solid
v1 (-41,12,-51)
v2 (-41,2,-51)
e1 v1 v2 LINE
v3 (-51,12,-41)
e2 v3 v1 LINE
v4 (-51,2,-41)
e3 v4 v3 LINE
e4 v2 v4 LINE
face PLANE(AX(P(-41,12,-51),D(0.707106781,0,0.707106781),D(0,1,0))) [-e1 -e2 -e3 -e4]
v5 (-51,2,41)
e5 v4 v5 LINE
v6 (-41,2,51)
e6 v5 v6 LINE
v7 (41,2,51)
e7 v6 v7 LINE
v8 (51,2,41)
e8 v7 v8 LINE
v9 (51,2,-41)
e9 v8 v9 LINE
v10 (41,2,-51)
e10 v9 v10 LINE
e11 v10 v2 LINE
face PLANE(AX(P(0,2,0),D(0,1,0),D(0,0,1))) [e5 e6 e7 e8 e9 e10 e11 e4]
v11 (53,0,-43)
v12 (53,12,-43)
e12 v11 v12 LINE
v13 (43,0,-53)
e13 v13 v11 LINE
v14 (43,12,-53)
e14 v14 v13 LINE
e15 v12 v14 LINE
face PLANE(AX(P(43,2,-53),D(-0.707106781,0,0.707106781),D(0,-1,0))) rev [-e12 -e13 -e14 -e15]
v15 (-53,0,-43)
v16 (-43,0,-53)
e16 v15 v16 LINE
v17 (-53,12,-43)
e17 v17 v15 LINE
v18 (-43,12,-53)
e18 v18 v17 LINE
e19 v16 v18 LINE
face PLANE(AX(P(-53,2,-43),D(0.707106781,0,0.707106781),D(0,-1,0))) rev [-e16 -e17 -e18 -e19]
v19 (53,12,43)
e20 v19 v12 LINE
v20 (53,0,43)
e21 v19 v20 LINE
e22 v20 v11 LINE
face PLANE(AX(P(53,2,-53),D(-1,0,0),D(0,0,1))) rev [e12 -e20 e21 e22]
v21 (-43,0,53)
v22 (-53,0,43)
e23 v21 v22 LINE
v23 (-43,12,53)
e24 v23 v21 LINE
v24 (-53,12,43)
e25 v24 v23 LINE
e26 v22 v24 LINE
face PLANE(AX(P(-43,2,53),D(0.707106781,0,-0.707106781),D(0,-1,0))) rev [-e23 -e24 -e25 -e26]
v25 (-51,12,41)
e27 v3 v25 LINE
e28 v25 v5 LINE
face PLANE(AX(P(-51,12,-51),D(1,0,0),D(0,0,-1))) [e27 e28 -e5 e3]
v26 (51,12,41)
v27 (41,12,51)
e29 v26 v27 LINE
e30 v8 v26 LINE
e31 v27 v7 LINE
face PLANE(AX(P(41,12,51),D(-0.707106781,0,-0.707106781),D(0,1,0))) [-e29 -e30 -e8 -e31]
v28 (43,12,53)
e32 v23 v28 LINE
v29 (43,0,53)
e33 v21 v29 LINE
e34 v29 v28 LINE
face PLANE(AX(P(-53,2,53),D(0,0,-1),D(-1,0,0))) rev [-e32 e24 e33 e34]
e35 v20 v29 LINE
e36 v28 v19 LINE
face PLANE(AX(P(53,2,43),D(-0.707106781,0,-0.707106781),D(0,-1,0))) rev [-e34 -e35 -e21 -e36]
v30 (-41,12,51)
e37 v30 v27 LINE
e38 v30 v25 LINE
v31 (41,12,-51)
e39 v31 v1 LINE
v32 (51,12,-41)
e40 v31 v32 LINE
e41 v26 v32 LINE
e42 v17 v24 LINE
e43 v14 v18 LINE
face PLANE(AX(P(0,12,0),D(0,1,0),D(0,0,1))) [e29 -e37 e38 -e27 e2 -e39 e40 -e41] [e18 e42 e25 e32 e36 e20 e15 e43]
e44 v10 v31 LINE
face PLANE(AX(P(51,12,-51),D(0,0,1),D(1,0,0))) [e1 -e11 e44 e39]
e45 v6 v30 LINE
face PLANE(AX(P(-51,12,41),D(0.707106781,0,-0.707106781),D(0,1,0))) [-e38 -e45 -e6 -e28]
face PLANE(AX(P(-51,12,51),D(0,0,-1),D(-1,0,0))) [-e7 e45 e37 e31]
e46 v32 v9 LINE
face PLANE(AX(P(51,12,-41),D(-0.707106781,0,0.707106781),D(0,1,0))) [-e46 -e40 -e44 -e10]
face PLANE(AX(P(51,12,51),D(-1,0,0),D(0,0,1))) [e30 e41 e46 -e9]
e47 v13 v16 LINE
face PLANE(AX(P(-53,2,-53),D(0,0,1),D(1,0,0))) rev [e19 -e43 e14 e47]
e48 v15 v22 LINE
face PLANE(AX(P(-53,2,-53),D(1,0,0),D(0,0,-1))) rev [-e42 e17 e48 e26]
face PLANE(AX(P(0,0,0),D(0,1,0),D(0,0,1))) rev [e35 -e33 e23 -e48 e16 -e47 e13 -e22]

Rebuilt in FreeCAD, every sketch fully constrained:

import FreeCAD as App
import Part
import Sketcher
from FreeCAD import Vector


def edges_at(feature, points):
    """Names of the edges that pass closest to the given points."""
    edges = feature.Shape.Edges
    near = lambda p: min(range(len(edges)), key=lambda i: edges[i].distToShape(Part.Vertex(*p))[0])
    return sorted({f"Edge{near(p) + 1}" for p in points})


def add_polygon(sketch, points):
    """Adds a closed chain of lines whose ends are joined by coincident constraints."""
    first, n = sketch.GeometryCount, len(points)
    for a, b in zip(points, points[1:] + points[:1]):
        sketch.addGeometry(Part.LineSegment(App.Vector(*a, 0), App.Vector(*b, 0)), False)
    for i in range(n):
        sketch.addConstraint(Sketcher.Constraint("Coincident", first + i, 2, first + (i + 1) % n, 1))

doc = App.newDocument("Part")
body = doc.addObject("PartDesign::Body", "Body")

# Sketch on XZ plane
sketch1 = body.newObject("Sketcher::SketchObject", "Sketch")
sketch1.AttachmentSupport = (doc.getObject("XZ_Plane"), [""])
sketch1.MapMode = "FlatFace"
add_polygon(sketch1, [(-53, -53), (-53, 53), (53, 53), (53, -53)])  # lines 0-3
sketch1.addConstraint([
    Sketcher.Constraint("Vertical", 0),
    Sketcher.Constraint("Horizontal", 1),
    Sketcher.Constraint("Vertical", 2),
    Sketcher.Constraint("Horizontal", 3),
    Sketcher.Constraint("Symmetric", 0, 2, 2, 2, -1, 1),
    Sketcher.Constraint("Equal", 3, 0),
    Sketcher.Constraint("DistanceX", 1, 1, 1, 2, 106.0),
])
pad1 = body.newObject("PartDesign::Pad", "Pad")
pad1.Profile = sketch1
pad1.Length = 2
pad1.Reversed = True

# Sketch on XZ plane
sketch2 = body.newObject("Sketcher::SketchObject", "Sketch001")
sketch2.AttachmentSupport = (doc.getObject("XZ_Plane"), [""])
sketch2.MapMode = "FlatFace"
sketch2.AttachmentOffset = App.Placement(Vector(0, 0, -2), App.Rotation())
add_polygon(sketch2, [(-53, -53), (-53, 53), (53, 53), (53, -53)])  # lines 0-3
add_polygon(sketch2, [(51, 51), (-51, 51), (-51, -51), (51, -51)])  # lines 4-7
sketch2.addConstraint([
    Sketcher.Constraint("Vertical", 0),
    Sketcher.Constraint("Horizontal", 1),
    Sketcher.Constraint("Vertical", 2),
    Sketcher.Constraint("Horizontal", 3),
    Sketcher.Constraint("Horizontal", 4),
    Sketcher.Constraint("Vertical", 5),
    Sketcher.Constraint("Horizontal", 6),
    Sketcher.Constraint("Vertical", 7),
    Sketcher.Constraint("Symmetric", 0, 2, 2, 2, -1, 1),
    Sketcher.Constraint("Symmetric", 4, 2, 6, 2, -1, 1),
    Sketcher.Constraint("Equal", 3, 0),
    Sketcher.Constraint("Equal", 6, 5),
    Sketcher.Constraint("DistanceX", 1, 1, 1, 2, 106.0),
    Sketcher.Constraint("DistanceX", 4, 2, 4, 1, 102.0),
])
pad2 = body.newObject("PartDesign::Pad", "Pad001")
pad2.Profile = sketch2
pad2.Length = 10
pad2.Reversed = True
doc.recompute()

chamfer = body.newObject("PartDesign::Chamfer", "Chamfer")
chamfer.Base = (pad2, edges_at(pad2, [
    (-51, 7, -51),
    (-51, 7, 51),
    (51, 7, 51),
    (51, 7, -51),
    (-53, 6, -53),
    (53, 6, -53),
    (53, 6, 53),
    (-53, 6, 53),
]))
chamfer.Size = 10

doc.recompute()
